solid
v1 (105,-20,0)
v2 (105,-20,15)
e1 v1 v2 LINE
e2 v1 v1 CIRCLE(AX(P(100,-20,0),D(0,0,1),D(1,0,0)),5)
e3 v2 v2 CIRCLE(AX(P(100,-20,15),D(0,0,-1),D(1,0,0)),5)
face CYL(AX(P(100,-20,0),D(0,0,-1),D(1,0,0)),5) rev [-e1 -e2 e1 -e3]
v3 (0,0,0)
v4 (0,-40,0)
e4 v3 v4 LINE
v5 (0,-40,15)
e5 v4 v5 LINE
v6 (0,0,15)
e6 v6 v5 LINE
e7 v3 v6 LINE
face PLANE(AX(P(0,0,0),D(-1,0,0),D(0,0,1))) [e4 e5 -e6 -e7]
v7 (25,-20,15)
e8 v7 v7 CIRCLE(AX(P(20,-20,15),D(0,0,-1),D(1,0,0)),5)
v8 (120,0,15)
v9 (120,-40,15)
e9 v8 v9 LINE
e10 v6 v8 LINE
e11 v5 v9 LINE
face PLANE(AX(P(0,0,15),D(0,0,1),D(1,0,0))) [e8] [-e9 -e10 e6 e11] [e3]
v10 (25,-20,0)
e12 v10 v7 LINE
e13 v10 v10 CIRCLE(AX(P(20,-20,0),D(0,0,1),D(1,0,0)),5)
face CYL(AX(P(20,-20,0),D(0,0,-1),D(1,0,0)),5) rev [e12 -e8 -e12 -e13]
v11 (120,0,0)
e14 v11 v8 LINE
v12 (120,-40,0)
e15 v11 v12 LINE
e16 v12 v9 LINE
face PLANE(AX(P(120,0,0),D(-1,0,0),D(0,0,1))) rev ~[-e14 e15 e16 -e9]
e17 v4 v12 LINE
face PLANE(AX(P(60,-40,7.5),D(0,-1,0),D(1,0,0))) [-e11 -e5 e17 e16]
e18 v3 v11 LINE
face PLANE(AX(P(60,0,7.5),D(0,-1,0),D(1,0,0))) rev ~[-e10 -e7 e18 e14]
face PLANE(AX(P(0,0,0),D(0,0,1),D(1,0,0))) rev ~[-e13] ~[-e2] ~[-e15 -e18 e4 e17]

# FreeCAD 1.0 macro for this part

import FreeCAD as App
import Part
import Sketcher

doc = App.newDocument("Part")
body = doc.addObject("PartDesign::Body", "Body")

# Sketch on XZ plane
sketch1 = body.newObject("Sketcher::SketchObject", "Sketch")
sketch1.AttachmentSupport = (doc.getObject("XZ_Plane"), [""])
sketch1.MapMode = "FlatFace"
sketch1.addGeometry(Part.LineSegment(App.Vector(0, 15, 0), App.Vector(0, 0, 0)), False)
sketch1.addGeometry(Part.LineSegment(App.Vector(0, 0, 0), App.Vector(120, 0, 0)), False)
sketch1.addGeometry(Part.LineSegment(App.Vector(120, 0, 0), App.Vector(120, 15, 0)), False)
sketch1.addGeometry(Part.LineSegment(App.Vector(120, 15, 0), App.Vector(0, 15, 0)), False)
sketch1.addConstraint(Sketcher.Constraint("Coincident", 0, 2, 1, 1))
sketch1.addConstraint(Sketcher.Constraint("Coincident", 1, 2, 2, 1))
sketch1.addConstraint(Sketcher.Constraint("Coincident", 2, 2, 3, 1))
sketch1.addConstraint(Sketcher.Constraint("Coincident", 3, 2, 0, 1))
sketch1.addConstraint(Sketcher.Constraint("Vertical", 0))
sketch1.addConstraint(Sketcher.Constraint("Horizontal", 1))
sketch1.addConstraint(Sketcher.Constraint("Vertical", 2))
sketch1.addConstraint(Sketcher.Constraint("Horizontal", 3))
sketch1.addConstraint(Sketcher.Constraint("Coincident", 0, 2, -1, 1))
sketch1.addConstraint(Sketcher.Constraint("DistanceX", 1, 1, 1, 2, 120.0))
sketch1.addConstraint(Sketcher.Constraint("DistanceY", 0, 2, 0, 1, 15.0))
pad1 = body.newObject("PartDesign::Pad", "Pad")
pad1.Profile = sketch1
pad1.Length = 40

# Sketch on XY plane
sketch2 = body.newObject("Sketcher::SketchObject", "Sketch001")
sketch2.AttachmentSupport = (doc.getObject("XY_Plane"), [""])
sketch2.MapMode = "FlatFace"
sketch2.addGeometry(Part.Circle(App.Vector(20, -20, 0), App.Vector(0, 0, 1), 5), False)
sketch2.addGeometry(Part.Circle(App.Vector(100, -20, 0), App.Vector(0, 0, 1), 5), False)
sketch2.addConstraint(Sketcher.Constraint("Equal", 0, 1))
sketch2.addConstraint(Sketcher.Constraint("Horizontal", 0, 3, 1, 3))
sketch2.addConstraint(Sketcher.Constraint("Diameter", 0, 10.0))
sketch2.addConstraint(Sketcher.Constraint("DistanceX", -1, 1, 0, 3, 20.0))
sketch2.addConstraint(Sketcher.Constraint("DistanceY", 0, 3, -1, 1, 20.0))
sketch2.addConstraint(Sketcher.Constraint("DistanceX", -1, 1, 1, 3, 100.0))
pocket1 = body.newObject("PartDesign::Pocket", "Pocket")
pocket1.Profile = sketch2
pocket1.Type = "ThroughAll"
pocket1.Reversed = True

doc.recompute()
